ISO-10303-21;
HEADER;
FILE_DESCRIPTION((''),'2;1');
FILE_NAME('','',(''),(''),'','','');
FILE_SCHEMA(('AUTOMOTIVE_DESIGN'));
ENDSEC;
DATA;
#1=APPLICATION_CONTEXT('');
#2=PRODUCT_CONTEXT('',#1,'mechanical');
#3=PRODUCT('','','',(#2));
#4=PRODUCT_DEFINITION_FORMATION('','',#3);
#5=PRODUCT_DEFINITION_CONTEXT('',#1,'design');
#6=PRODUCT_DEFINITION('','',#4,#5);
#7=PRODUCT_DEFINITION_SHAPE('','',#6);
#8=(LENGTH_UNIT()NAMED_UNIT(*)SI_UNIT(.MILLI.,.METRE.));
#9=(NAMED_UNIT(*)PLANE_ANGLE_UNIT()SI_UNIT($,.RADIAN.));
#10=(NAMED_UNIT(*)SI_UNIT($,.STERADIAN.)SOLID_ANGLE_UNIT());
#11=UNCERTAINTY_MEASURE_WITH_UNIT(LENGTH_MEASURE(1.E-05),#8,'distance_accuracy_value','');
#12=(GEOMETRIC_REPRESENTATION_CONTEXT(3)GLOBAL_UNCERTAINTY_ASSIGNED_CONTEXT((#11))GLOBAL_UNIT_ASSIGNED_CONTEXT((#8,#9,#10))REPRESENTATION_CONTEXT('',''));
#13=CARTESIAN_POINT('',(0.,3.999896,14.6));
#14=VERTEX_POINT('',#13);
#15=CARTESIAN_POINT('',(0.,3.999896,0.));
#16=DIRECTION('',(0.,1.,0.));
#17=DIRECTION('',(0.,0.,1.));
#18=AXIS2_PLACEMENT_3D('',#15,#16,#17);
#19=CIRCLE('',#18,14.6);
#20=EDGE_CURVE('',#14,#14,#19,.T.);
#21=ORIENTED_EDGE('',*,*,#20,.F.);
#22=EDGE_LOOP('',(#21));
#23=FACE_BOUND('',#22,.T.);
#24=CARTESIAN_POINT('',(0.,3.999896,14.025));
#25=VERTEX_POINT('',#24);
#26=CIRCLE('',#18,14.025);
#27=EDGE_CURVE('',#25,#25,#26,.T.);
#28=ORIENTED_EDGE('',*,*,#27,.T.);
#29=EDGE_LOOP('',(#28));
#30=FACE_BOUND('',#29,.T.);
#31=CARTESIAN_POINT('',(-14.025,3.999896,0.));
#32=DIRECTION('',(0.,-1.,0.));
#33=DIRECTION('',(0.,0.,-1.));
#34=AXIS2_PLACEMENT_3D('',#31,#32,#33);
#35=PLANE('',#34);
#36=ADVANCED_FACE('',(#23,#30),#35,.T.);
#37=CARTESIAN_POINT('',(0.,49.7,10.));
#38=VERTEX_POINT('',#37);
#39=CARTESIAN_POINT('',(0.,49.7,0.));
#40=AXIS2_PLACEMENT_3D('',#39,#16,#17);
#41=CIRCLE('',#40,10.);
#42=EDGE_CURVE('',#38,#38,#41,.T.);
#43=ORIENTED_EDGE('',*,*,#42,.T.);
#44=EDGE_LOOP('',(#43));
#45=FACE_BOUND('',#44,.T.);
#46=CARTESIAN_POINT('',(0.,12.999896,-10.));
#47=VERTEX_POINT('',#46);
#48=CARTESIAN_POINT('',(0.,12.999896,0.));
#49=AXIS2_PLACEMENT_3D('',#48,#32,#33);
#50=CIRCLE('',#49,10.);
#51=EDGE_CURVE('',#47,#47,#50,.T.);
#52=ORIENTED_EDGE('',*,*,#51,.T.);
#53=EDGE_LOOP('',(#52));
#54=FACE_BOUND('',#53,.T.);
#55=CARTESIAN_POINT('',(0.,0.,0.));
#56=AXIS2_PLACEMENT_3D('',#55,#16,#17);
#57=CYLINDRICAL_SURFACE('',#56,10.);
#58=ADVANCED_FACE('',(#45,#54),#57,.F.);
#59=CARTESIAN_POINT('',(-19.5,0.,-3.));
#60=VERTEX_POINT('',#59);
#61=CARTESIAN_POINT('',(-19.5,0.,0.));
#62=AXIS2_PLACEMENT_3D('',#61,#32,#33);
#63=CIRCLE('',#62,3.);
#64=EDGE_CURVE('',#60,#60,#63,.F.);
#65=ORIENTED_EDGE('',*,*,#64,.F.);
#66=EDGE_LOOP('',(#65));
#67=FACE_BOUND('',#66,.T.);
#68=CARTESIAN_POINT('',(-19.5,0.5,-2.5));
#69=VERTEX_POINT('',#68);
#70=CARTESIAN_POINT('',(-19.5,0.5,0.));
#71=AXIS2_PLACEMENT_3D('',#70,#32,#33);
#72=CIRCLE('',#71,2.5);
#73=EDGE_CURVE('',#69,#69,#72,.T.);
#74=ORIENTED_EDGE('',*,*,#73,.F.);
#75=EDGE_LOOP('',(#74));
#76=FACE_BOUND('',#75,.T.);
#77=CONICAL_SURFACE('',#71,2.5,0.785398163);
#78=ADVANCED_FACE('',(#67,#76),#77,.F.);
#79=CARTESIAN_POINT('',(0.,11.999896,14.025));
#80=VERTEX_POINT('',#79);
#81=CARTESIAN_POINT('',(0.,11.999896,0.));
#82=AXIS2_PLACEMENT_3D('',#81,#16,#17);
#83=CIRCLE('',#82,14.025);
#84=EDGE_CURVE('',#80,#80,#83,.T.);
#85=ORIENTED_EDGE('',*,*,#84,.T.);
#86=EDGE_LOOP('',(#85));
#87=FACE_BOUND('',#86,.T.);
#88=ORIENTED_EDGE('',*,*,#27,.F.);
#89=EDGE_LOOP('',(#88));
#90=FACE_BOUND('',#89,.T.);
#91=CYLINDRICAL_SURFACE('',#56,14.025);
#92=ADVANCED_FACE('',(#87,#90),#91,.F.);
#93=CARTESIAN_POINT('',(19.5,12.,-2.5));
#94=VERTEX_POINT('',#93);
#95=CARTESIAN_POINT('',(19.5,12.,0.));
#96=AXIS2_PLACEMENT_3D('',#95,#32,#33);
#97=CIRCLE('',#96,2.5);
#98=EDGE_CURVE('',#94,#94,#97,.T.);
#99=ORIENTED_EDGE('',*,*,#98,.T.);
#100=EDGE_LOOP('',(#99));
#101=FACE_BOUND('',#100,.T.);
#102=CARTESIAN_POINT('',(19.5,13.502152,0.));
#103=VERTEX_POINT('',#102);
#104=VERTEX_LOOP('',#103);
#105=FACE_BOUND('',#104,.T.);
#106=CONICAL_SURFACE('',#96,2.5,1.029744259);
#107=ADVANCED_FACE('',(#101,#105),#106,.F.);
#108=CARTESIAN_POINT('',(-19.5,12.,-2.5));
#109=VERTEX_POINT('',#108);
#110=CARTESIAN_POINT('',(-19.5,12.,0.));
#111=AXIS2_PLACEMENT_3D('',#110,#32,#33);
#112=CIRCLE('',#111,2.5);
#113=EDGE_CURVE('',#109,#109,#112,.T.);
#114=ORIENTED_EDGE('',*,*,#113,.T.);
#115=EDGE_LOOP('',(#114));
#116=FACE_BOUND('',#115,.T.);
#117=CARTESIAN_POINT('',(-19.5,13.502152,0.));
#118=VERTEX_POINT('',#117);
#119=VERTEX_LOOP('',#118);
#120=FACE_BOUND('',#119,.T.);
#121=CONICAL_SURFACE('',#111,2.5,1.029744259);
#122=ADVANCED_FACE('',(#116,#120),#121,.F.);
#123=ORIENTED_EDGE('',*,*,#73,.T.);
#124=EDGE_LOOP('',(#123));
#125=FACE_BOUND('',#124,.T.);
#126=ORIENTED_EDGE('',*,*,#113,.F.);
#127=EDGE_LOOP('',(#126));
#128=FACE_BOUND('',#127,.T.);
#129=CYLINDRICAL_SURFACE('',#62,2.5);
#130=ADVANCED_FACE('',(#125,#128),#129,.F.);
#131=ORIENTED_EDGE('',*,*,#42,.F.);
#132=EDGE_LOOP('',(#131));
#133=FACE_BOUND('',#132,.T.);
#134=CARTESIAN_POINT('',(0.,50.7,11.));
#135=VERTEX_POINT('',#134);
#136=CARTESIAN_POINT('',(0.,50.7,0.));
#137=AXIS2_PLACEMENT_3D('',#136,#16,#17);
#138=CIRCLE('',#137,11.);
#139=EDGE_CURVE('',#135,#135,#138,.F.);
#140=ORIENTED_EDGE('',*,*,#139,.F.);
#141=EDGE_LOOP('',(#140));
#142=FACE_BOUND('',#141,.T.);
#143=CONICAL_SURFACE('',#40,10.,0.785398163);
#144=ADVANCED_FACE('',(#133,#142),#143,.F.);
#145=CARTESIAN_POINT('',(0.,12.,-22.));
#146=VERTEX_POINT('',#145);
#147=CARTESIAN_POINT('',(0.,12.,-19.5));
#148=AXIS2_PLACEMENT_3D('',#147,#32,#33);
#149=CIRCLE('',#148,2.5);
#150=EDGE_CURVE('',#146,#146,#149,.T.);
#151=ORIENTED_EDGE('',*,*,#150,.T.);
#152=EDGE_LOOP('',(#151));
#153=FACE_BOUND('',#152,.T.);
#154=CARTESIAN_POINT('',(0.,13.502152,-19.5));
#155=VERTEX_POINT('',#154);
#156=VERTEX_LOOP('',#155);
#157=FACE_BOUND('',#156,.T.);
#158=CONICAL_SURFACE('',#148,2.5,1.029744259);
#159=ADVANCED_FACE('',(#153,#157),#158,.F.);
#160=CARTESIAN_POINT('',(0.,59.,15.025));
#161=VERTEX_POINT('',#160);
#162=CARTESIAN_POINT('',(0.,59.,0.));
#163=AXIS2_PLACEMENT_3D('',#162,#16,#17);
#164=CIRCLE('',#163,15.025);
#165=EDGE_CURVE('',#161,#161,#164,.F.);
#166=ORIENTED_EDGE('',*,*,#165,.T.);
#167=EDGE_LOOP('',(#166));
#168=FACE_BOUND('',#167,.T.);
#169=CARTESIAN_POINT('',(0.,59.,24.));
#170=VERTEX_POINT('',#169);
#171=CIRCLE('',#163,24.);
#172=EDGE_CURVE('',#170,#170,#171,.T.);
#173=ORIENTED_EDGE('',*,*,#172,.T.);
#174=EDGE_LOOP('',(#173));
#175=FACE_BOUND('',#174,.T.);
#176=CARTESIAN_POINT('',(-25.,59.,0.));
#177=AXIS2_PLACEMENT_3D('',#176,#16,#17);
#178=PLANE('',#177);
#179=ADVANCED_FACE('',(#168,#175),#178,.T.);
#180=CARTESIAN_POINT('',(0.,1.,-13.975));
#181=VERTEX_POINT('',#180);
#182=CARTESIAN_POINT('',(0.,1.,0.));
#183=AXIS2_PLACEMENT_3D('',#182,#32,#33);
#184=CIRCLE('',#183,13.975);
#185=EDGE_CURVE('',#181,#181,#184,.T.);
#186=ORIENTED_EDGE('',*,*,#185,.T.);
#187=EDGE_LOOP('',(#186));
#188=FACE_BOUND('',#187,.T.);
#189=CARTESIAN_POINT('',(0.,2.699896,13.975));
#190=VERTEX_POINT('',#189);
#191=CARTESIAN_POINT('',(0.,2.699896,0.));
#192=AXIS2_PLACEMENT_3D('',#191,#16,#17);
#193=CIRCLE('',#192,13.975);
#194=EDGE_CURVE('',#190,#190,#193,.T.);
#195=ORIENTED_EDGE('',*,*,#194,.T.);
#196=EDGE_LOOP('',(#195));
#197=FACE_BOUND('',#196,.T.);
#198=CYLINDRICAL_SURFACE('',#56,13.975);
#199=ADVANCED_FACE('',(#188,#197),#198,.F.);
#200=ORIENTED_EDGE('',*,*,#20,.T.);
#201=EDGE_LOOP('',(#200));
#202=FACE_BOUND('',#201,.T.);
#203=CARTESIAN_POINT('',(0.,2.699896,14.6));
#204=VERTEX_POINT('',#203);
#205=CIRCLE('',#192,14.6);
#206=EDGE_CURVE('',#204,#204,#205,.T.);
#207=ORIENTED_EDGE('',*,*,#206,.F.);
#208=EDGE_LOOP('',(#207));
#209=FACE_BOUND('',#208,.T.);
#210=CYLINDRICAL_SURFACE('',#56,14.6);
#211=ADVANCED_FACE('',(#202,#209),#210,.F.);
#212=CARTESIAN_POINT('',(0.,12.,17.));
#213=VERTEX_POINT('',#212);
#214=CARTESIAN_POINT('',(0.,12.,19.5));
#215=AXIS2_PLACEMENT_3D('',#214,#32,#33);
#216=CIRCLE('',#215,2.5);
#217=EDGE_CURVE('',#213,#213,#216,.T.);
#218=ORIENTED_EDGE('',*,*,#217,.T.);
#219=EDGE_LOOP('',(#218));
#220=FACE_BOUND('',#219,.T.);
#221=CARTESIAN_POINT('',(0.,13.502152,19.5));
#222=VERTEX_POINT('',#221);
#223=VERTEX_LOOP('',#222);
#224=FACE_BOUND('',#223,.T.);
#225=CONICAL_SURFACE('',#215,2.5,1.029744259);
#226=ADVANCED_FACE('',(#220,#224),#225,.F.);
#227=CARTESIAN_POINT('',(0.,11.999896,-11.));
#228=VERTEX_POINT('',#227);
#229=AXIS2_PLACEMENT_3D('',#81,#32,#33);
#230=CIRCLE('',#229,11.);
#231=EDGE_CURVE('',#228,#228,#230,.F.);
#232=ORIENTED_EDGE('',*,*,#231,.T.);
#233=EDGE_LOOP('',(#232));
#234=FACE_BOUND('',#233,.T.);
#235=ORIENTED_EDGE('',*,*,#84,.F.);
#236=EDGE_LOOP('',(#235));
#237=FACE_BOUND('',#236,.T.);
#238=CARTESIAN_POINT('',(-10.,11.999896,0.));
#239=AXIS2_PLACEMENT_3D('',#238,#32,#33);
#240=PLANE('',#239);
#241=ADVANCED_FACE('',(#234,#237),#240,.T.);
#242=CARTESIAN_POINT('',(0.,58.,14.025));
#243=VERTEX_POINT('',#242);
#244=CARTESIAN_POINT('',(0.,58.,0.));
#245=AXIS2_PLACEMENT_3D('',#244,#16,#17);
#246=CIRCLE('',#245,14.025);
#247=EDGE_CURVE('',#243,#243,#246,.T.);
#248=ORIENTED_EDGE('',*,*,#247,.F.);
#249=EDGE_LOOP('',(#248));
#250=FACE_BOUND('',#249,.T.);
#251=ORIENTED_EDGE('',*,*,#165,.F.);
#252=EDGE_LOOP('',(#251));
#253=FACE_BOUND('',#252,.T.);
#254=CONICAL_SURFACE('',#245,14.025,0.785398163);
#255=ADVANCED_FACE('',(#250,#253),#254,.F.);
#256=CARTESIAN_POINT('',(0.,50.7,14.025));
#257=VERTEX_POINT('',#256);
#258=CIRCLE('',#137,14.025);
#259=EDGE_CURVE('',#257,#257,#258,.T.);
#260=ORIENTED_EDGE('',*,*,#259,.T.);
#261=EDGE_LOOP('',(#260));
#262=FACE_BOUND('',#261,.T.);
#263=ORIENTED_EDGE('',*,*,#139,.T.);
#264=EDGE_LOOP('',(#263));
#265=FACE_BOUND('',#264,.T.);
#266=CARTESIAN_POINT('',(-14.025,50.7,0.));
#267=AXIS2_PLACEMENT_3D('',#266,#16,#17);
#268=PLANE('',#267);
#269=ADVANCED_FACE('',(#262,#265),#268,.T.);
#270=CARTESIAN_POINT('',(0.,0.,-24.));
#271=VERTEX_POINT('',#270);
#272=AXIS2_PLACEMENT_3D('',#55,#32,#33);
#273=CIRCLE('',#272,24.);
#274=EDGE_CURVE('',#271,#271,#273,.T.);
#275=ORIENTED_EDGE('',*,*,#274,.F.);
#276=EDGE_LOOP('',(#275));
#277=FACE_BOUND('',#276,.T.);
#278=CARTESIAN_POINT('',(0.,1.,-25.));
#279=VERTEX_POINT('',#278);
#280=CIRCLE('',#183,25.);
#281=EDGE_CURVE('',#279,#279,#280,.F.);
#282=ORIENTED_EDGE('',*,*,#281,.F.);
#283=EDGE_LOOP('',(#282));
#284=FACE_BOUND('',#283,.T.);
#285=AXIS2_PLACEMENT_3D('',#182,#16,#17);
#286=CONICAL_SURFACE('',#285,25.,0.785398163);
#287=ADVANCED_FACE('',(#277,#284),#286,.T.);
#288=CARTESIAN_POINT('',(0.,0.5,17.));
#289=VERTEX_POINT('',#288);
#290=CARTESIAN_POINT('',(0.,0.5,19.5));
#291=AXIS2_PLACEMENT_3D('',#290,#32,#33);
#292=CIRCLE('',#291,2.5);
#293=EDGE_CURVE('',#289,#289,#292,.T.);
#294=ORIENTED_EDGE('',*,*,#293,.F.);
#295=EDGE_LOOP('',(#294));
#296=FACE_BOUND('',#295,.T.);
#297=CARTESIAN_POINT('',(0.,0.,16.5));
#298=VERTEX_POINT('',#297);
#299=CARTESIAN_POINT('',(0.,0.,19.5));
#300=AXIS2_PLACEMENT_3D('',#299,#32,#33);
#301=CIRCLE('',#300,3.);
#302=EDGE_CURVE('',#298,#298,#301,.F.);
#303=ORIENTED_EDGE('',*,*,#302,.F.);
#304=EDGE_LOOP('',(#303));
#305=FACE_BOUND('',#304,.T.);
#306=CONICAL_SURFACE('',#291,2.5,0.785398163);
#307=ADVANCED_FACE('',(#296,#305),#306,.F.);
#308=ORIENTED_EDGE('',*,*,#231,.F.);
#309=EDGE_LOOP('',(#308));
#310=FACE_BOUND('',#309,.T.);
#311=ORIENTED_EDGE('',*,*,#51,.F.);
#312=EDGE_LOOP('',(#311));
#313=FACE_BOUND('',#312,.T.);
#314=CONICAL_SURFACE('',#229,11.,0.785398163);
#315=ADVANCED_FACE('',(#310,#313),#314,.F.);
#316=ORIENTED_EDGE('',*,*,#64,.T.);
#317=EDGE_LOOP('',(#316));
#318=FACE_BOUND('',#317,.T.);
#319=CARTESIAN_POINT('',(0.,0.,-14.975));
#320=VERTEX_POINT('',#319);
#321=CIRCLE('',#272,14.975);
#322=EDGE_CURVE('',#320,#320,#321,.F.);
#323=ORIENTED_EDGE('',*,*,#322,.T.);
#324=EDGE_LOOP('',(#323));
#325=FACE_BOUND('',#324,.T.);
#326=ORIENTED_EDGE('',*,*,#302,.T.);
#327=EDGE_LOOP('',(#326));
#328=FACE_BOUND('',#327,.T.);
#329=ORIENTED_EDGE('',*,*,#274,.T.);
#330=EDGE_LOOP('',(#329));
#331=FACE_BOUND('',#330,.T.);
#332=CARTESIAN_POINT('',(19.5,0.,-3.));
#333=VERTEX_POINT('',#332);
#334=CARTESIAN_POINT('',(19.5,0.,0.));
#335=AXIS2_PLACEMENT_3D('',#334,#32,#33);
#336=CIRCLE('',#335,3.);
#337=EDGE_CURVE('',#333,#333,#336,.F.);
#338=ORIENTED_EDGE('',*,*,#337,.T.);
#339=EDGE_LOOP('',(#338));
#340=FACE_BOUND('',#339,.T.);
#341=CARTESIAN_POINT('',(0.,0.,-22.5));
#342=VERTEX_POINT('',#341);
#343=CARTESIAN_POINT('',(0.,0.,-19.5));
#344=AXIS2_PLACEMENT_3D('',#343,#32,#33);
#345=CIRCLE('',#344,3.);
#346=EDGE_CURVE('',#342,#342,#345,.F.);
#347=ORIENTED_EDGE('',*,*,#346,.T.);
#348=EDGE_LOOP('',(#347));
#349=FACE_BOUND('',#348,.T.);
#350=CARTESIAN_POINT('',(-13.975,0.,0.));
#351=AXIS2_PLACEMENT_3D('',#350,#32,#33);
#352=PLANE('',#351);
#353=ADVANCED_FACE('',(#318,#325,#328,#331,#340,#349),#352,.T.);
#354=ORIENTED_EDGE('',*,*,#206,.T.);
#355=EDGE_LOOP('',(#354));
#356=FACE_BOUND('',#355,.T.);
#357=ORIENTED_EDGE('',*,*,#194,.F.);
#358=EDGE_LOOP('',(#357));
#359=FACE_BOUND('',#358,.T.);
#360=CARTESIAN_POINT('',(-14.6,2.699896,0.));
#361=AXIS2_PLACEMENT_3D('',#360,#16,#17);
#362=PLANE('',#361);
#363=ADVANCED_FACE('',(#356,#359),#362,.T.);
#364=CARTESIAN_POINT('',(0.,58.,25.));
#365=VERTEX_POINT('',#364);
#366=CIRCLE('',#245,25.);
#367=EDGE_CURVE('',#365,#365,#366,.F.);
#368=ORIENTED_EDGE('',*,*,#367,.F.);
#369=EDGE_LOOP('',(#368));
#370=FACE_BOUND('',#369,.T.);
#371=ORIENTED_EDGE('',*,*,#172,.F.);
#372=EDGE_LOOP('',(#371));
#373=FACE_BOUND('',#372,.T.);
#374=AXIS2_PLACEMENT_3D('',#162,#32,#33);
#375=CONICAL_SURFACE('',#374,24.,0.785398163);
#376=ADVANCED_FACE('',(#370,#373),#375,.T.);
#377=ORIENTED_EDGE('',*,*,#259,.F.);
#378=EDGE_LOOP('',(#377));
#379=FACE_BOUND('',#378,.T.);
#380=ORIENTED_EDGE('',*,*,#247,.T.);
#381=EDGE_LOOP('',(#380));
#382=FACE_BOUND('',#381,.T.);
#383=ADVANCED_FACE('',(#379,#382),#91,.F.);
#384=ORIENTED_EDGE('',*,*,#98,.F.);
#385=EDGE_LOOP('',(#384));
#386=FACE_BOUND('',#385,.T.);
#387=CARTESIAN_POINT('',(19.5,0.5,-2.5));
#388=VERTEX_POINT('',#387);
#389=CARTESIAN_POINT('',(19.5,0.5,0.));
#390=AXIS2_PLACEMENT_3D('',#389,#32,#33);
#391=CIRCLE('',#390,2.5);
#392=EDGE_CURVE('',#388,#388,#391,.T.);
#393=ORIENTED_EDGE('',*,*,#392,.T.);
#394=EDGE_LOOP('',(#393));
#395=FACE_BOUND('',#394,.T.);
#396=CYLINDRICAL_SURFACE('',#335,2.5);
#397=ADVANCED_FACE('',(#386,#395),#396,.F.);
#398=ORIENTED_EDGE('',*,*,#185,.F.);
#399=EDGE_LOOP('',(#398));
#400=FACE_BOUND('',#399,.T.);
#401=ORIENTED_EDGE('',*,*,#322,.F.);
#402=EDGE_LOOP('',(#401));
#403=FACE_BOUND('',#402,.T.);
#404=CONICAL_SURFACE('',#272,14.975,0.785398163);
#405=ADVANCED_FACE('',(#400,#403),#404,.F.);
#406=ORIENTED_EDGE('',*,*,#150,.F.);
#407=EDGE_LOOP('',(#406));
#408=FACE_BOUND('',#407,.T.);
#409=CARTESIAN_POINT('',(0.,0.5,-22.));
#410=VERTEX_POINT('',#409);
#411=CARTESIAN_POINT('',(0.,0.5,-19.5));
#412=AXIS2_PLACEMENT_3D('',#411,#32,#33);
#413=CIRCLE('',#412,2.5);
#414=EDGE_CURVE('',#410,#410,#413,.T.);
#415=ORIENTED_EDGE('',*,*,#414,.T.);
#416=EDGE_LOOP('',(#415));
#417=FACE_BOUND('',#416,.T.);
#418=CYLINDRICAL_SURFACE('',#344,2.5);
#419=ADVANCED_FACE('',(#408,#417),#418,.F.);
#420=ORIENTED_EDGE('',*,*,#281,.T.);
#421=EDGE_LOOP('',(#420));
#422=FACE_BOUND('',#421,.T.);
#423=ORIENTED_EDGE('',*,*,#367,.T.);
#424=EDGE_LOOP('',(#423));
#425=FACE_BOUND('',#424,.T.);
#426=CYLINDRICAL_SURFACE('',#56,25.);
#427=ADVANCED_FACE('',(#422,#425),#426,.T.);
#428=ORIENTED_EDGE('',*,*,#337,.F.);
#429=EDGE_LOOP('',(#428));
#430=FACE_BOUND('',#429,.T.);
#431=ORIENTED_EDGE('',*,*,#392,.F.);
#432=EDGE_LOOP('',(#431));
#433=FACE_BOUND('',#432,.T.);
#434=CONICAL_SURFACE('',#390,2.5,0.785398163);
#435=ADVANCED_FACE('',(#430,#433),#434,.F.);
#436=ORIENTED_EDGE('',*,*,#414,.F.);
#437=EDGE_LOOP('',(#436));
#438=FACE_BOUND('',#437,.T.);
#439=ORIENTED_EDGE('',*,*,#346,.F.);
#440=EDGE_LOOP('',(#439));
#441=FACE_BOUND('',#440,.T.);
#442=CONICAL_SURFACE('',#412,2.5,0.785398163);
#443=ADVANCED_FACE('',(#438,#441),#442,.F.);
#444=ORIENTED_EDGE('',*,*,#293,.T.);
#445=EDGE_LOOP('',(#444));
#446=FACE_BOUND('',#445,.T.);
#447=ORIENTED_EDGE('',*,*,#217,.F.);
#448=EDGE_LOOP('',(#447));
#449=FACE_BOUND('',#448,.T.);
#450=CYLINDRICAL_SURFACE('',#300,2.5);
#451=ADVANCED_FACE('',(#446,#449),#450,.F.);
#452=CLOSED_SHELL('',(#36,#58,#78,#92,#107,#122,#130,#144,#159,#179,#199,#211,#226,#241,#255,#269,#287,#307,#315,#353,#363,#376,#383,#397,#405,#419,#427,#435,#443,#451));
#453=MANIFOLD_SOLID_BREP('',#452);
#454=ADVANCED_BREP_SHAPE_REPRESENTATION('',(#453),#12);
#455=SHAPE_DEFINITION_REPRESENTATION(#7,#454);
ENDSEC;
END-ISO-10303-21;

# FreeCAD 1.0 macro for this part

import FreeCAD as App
import Part
import Sketcher
from FreeCAD import Vector
Q = App.Units.Quantity


def edges_at(feature, points):
    """Names of the edges that pass closest to the given points."""
    edges = feature.Shape.Edges
    near = lambda p: min(range(len(edges)), key=lambda i: edges[i].distToShape(Part.Vertex(*p))[0])
    return sorted({f"Edge{near(p) + 1}" for p in points})

doc = App.newDocument("Part")
body = doc.addObject("PartDesign::Body", "Body")

# Sketch on XY plane
sketch1 = body.newObject("Sketcher::SketchObject", "Sketch")
sketch1.AttachmentSupport = (doc.getObject("XY_Plane"), [""])
sketch1.MapMode = "FlatFace"
sketch1.addGeometry([
    Part.LineSegment(Vector(-25, 59, 0), Vector(-25, 0, 0)),  # 0
    Part.LineSegment(Vector(-25, 0, 0), Vector(-13.975, 0, 0)),  # 1
    Part.LineSegment(Vector(-13.975, 0, 0), Vector(-13.975, 2.699896, 0)),  # 2
    Part.LineSegment(Vector(-13.975, 2.699896, 0), Vector(-14.6, 2.699896, 0)),  # 3
    Part.LineSegment(Vector(-14.6, 2.699896, 0), Vector(-14.6, 3.999896, 0)),  # 4
    Part.LineSegment(Vector(-14.6, 3.999896, 0), Vector(-14.025, 3.999896, 0)),  # 5
    Part.LineSegment(Vector(-14.025, 3.999896, 0), Vector(-14.025, 11.999896, 0)),  # 6
    Part.LineSegment(Vector(-14.025, 11.999896, 0), Vector(-10, 11.999896, 0)),  # 7
    Part.LineSegment(Vector(-10, 11.999896, 0), Vector(-10, 50.7, 0)),  # 8
    Part.LineSegment(Vector(-10, 50.7, 0), Vector(-14.025, 50.7, 0)),  # 9
    Part.LineSegment(Vector(-14.025, 50.7, 0), Vector(-14.025, 59, 0)),  # 10
    Part.LineSegment(Vector(-14.025, 59, 0), Vector(-25, 59, 0)),  # 11
], False)
sketch1.addConstraint([
    Sketcher.Constraint("Coincident", 0, 2, 1, 1),
    Sketcher.Constraint("Coincident", 1, 2, 2, 1),
    Sketcher.Constraint("Coincident", 2, 2, 3, 1),
    Sketcher.Constraint("Coincident", 3, 2, 4, 1),
    Sketcher.Constraint("Coincident", 4, 2, 5, 1),
    Sketcher.Constraint("Coincident", 5, 2, 6, 1),
    Sketcher.Constraint("Coincident", 6, 2, 7, 1),
    Sketcher.Constraint("Coincident", 7, 2, 8, 1),
    Sketcher.Constraint("Coincident", 8, 2, 9, 1),
    Sketcher.Constraint("Coincident", 9, 2, 10, 1),
    Sketcher.Constraint("Coincident", 10, 2, 11, 1),
    Sketcher.Constraint("Coincident", 11, 2, 0, 1),
    Sketcher.Constraint("Vertical", 0),
    Sketcher.Constraint("Horizontal", 1),
    Sketcher.Constraint("Vertical", 2),
    Sketcher.Constraint("Horizontal", 3),
    Sketcher.Constraint("Vertical", 4),
    Sketcher.Constraint("Horizontal", 5),
    Sketcher.Constraint("Vertical", 6),
    Sketcher.Constraint("Horizontal", 7),
    Sketcher.Constraint("Vertical", 8),
    Sketcher.Constraint("Horizontal", 9),
    Sketcher.Constraint("Vertical", 10),
    Sketcher.Constraint("Horizontal", 11),
    Sketcher.Constraint("PointOnObject", 0, 2, -1),
    Sketcher.Constraint("Vertical", 6, 2, 9, 2),
    Sketcher.Constraint("DistanceY", 0, 2, 0, 1, Q("59 mm")),
    Sketcher.Constraint("DistanceY", 6, 1, 6, 2, Q("8 mm")),
    Sketcher.Constraint("DistanceY", 4, 1, 4, 2, Q("1.3 mm")),
    Sketcher.Constraint("DistanceY", 10, 1, 10, 2, Q("8.3 mm")),
    Sketcher.Constraint("DistanceX", 0, 2, -1, 1, Q("25 mm")),
    Sketcher.Constraint("DistanceX", 7, 2, -1, 1, Q("10 mm")),
    Sketcher.Constraint("DistanceX", 3, 2, -1, 1, Q("14.6 mm")),
    Sketcher.Constraint("DistanceX", 1, 1, 1, 2, Q("11.025 mm")),
    Sketcher.Constraint("DistanceX", 5, 1, 5, 2, Q("0.575 mm")),
    Sketcher.Constraint("DistanceY", 2, 1, 2, 2, Q("2.699896 mm")),
])
revolution = body.newObject("PartDesign::Revolution", "Revolution")
revolution.Profile = sketch1
revolution.ReferenceAxis = (sketch1, ["V_Axis"])
revolution.Angle = 360
doc.recompute()

chamfer = body.newObject("PartDesign::Chamfer", "Chamfer")
chamfer.Base = (revolution, edges_at(revolution, [
    (0, 12, -10),
    (0, 50.7, -10),
    (0, 59, -14.025),
    (0, 0, -13.975),
]))
chamfer.Size = 1

# Sketch on XZ plane
sketch2 = body.newObject("Sketcher::SketchObject", "Sketch001")
sketch2.AttachmentSupport = (doc.getObject("XZ_Plane"), [""])
sketch2.MapMode = "FlatFace"
sketch2.addGeometry([
    Part.Circle(Vector(0, -19.5, 0), Vector(0, 0, 1), 2.5),
    Part.Circle(Vector(-19.5, 0, 0), Vector(0, 0, 1), 2.5),
    Part.Circle(Vector(0, 19.5, 0), Vector(0, 0, 1), 2.5),
    Part.Circle(Vector(19.5, 0, 0), Vector(0, 0, 1), 2.5),
], False)
sketch2.addConstraint([
    Sketcher.Constraint("Equal", 0, 1),
    Sketcher.Constraint("Equal", 1, 2),
    Sketcher.Constraint("Equal", 2, 3),
    Sketcher.Constraint("Symmetric", 0, 3, 2, 3, -1, 1),
    Sketcher.Constraint("Symmetric", 1, 3, 3, 3, -1, 1),
    Sketcher.Constraint("PointOnObject", 0, 3, -2),
    Sketcher.Constraint("PointOnObject", 1, 3, -1),
    Sketcher.Constraint("Diameter", 0, Q("5 mm")),
    Sketcher.Constraint("DistanceY", 0, 3, 2, 3, Q("39 mm")),
    Sketcher.Constraint("DistanceX", 1, 3, 3, 3, Q("39 mm")),
])
doc.recompute()
hole = body.newObject("PartDesign::Hole", "Hole")
hole.Profile = sketch2
hole.ThreadType = "None"
hole.Diameter = 5
hole.DepthType = "Dimension"
hole.Depth = 12
hole.DrillPoint = "Angled"
hole.DrillPointAngle = 118
doc.recompute()

chamfer2 = body.newObject("PartDesign::Chamfer", "Chamfer001")
chamfer2.Base = (hole, edges_at(hole, [(0, 59, -25), (0, 0, -25)]))
chamfer2.Size = 1
doc.recompute()

chamfer3 = body.newObject("PartDesign::Chamfer", "Chamfer002")
chamfer3.Base = (chamfer2, edges_at(chamfer2, [
    (17, 0, 0),
    (-2.5, 0, 19.5),
    (-22, 0, 0),
    (-2.5, 0, -19.5),
]))
chamfer3.Size = 0.5

doc.recompute()
